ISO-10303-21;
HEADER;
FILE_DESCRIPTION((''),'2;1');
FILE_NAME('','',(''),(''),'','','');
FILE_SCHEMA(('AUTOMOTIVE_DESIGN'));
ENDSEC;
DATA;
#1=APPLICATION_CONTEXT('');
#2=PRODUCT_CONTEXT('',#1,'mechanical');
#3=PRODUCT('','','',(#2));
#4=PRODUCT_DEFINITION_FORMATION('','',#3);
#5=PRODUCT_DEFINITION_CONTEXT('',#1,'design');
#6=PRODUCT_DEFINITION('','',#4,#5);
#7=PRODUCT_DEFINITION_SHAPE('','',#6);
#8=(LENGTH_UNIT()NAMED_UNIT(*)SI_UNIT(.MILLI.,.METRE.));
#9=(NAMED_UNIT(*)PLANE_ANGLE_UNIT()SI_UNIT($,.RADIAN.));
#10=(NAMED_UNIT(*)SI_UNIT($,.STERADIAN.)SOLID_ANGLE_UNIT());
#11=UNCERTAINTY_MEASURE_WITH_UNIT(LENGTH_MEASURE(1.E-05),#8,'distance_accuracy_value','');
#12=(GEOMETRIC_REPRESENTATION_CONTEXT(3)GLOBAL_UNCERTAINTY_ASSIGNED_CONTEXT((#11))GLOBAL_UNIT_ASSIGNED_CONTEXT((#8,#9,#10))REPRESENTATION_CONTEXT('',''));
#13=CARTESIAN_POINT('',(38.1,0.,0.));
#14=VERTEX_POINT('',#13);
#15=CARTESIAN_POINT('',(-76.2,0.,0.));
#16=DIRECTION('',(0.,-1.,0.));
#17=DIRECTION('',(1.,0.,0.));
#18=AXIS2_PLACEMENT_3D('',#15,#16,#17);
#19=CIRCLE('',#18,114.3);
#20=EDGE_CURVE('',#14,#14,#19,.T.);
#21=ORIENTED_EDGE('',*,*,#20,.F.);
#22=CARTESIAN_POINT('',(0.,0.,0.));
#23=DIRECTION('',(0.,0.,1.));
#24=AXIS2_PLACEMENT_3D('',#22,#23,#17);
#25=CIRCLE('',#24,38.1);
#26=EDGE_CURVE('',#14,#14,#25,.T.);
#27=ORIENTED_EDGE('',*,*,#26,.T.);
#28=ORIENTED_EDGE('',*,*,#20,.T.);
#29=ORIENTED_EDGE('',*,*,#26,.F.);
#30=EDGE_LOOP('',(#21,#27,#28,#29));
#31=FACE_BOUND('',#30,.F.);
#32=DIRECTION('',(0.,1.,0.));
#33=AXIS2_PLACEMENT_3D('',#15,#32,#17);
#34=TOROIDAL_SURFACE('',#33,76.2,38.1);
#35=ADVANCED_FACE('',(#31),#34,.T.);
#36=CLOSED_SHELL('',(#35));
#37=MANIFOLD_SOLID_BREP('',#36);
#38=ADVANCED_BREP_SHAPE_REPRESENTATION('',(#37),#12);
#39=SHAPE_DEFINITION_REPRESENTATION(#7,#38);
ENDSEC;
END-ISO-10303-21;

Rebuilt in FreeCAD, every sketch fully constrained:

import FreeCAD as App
import Part
import Sketcher
Q = App.Units.Quantity

doc = App.newDocument("Part")
body = doc.addObject("PartDesign::Body", "Body")

# Sketch on XY plane
sketch1 = body.newObject("Sketcher::SketchObject", "Sketch")
sketch1.AttachmentSupport = (doc.getObject("XY_Plane"), [""])
sketch1.MapMode = "FlatFace"
sketch1.addGeometry(Part.Circle(App.Vector(0, 0, 0), App.Vector(0, 0, 1), 38.1), False)
sketch1.addGeometry(Part.LineSegment(App.Vector(-76.2, 0, 0), App.Vector(-76.2, -10, 0)), True)  # axis
sketch1.addConstraint([
    Sketcher.Constraint("Vertical", 1),
    Sketcher.Constraint("Coincident", 0, 3, -1, 1),
    Sketcher.Constraint("PointOnObject", 1, 1, -1),
    Sketcher.Constraint("Diameter", 0, Q("3 in")),
    Sketcher.Constraint("DistanceX", 1, 1, -1, 1, Q("3 in")),
    Sketcher.Constraint("DistanceY", 1, 2, 1, 1, Q("10 mm")),
])
revolution = body.newObject("PartDesign::Revolution", "Revolution")
revolution.Profile = sketch1
revolution.ReferenceAxis = (sketch1, ["Axis0"])
revolution.Angle = 360

doc.recompute()
